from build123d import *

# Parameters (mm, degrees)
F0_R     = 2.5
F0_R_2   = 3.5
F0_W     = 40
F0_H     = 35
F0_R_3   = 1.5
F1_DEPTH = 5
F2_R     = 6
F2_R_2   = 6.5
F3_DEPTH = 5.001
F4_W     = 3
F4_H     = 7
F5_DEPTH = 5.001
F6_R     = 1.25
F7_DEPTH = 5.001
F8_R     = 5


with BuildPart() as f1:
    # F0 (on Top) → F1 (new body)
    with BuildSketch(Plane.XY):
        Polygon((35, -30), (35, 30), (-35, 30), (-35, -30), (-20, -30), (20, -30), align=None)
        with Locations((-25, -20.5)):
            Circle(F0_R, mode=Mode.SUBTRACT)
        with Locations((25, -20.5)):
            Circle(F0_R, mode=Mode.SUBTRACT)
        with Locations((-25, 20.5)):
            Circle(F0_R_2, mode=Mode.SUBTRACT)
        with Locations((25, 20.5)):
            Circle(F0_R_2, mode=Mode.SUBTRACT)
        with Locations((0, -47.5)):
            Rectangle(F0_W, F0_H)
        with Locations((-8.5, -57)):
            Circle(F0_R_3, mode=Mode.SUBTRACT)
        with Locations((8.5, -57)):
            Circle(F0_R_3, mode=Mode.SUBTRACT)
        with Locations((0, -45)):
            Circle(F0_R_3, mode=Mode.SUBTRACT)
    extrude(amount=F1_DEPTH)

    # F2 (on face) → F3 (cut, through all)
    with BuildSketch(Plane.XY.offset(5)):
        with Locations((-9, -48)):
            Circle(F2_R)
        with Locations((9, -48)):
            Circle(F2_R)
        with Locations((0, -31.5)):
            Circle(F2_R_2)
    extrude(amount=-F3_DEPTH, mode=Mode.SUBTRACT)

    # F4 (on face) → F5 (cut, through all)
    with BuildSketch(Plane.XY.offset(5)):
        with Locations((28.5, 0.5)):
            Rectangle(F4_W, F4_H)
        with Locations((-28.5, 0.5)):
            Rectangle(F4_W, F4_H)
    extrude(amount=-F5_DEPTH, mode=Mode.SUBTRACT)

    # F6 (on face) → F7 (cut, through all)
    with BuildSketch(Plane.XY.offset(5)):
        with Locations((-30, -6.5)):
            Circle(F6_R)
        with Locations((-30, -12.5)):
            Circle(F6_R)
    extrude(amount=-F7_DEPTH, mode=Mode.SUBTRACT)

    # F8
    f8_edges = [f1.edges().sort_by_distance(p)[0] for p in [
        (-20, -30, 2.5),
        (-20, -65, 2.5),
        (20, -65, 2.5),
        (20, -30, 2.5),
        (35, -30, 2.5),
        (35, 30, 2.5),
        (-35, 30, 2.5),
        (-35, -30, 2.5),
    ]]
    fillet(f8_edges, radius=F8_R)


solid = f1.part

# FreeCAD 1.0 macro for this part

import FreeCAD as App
import Part
import Sketcher


def edges_at(feature, points):
    """Names of the edges that pass closest to the given points."""
    edges = feature.Shape.Edges
    near = lambda p: min(range(len(edges)), key=lambda i: edges[i].distToShape(Part.Vertex(*p))[0])
    return sorted({f"Edge{near(p) + 1}" for p in points})

doc = App.newDocument("Part")
params = doc.addObject("Spreadsheet::Sheet", "Params")
for row, (alias, value) in enumerate([
    ("sketch1_diameter", "3 mm"),
    ("sketch1_diameter2", "5 mm"),
    ("sketch1_diameter3", "7 mm"),
    ("sketch1_width", "70 mm"),
    ("sketch1_width2", "15 mm"),
    ("pad1_length", "5 mm"),
    ("sketch2_diameter", "12 mm"),
    ("sketch2_diameter2", "13 mm"),
    ("sketch3_width", "3 mm"),
    ("sketch3_height", "7 mm"),
    ("sketch4_diameter", "2.5 mm"),
    ("fillet_radius", "5 mm"),
], start=1):
    params.set(f"A{row}", alias)
    params.set(f"B{row}", "=" + value)
    params.setAlias(f"B{row}", alias)

body = doc.addObject("PartDesign::Body", "Body")

# Sketch on XY plane
sketch1 = body.newObject("Sketcher::SketchObject", "Sketch")
sketch1.AttachmentSupport = (doc.getObject("XY_Plane"), [""])
sketch1.MapMode = "FlatFace"
sketch1.addGeometry([
    Part.LineSegment(App.Vector(35, -30, 0), App.Vector(35, 30, 0)),  # 0
    Part.LineSegment(App.Vector(35, 30, 0), App.Vector(-35, 30, 0)),  # 1
    Part.LineSegment(App.Vector(-35, 30, 0), App.Vector(-35, -30, 0)),  # 2
    Part.LineSegment(App.Vector(-35, -30, 0), App.Vector(-20, -30, 0)),  # 3
    Part.LineSegment(App.Vector(-20, -30, 0), App.Vector(-20, -65, 0)),  # 4
    Part.LineSegment(App.Vector(-20, -65, 0), App.Vector(20, -65, 0)),  # 5
    Part.LineSegment(App.Vector(20, -65, 0), App.Vector(20, -30, 0)),  # 6
    Part.LineSegment(App.Vector(20, -30, 0), App.Vector(35, -30, 0)),  # 7
    Part.Circle(App.Vector(-8.5, -57, 0), App.Vector(0, 0, 1), 1.5),  # 8
    Part.Circle(App.Vector(-25, -20.5, 0), App.Vector(0, 0, 1), 2.5),  # 9
    Part.Circle(App.Vector(8.5, -57, 0), App.Vector(0, 0, 1), 1.5),  # 10
    Part.Circle(App.Vector(0, -45, 0), App.Vector(0, 0, 1), 1.5),  # 11
    Part.Circle(App.Vector(25, -20.5, 0), App.Vector(0, 0, 1), 2.5),  # 12
    Part.Circle(App.Vector(-25, 20.5, 0), App.Vector(0, 0, 1), 3.5),  # 13
    Part.Circle(App.Vector(25, 20.5, 0), App.Vector(0, 0, 1), 3.5),  # 14
], False)
sketch1.addConstraint([
    Sketcher.Constraint("Coincident", 0, 2, 1, 1),
    Sketcher.Constraint("Coincident", 1, 2, 2, 1),
    Sketcher.Constraint("Coincident", 2, 2, 3, 1),
    Sketcher.Constraint("Coincident", 3, 2, 4, 1),
    Sketcher.Constraint("Coincident", 4, 2, 5, 1),
    Sketcher.Constraint("Coincident", 5, 2, 6, 1),
    Sketcher.Constraint("Coincident", 6, 2, 7, 1),
    Sketcher.Constraint("Coincident", 7, 2, 0, 1),
    Sketcher.Constraint("Vertical", 0),
    Sketcher.Constraint("Horizontal", 1),
    Sketcher.Constraint("Vertical", 2),
    Sketcher.Constraint("Horizontal", 3),
    Sketcher.Constraint("Vertical", 4),
    Sketcher.Constraint("Horizontal", 5),
    Sketcher.Constraint("Vertical", 6),
    Sketcher.Constraint("Horizontal", 7),
    Sketcher.Constraint("Equal", 8, 10),
    Sketcher.Constraint("Equal", 10, 11),
    Sketcher.Constraint("Equal", 9, 12),
    Sketcher.Constraint("Equal", 13, 14),
    Sketcher.Constraint("Symmetric", 12, 3, 13, 3, -1, 1),
    Sketcher.Constraint("Symmetric", 9, 3, 14, 3, -1, 1),
    Sketcher.Constraint("Symmetric", 0, 2, 2, 2, -1, 1),
    Sketcher.Constraint("Symmetric", 8, 3, 10, 3, -2),
    Sketcher.Constraint("Symmetric", 9, 3, 12, 3, -2),
    Sketcher.Constraint("Symmetric", 3, 2, 6, 2, -2),
    Sketcher.Constraint("PointOnObject", 11, 3, -2),
    Sketcher.Constraint("Diameter", 8, 3.0),
    Sketcher.Constraint("Diameter", 9, 5.0),
    Sketcher.Constraint("Diameter", 13, 7.0),
    Sketcher.Constraint("DistanceX", 1, 2, 1, 1, 70.0),
    Sketcher.Constraint("DistanceX", 3, 1, 3, 2, 15.0),
    Sketcher.Constraint("DistanceY", 0, 1, 0, 2, 60.0),
    Sketcher.Constraint("DistanceY", 4, 2, 4, 1, 35.0),
    Sketcher.Constraint("DistanceY", 8, 3, -1, 1, 57.0),
    Sketcher.Constraint("DistanceX", 9, 3, -1, 1, 25.0),
    Sketcher.Constraint("DistanceY", 11, 3, -1, 1, 45.0),
    Sketcher.Constraint("DistanceX", 8, 3, 10, 3, 17.0),
    Sketcher.Constraint("DistanceY", 9, 3, 13, 3, 41.0),
])
sketch1.setExpression("Constraints[27]", "Params.sketch1_diameter")
sketch1.setExpression("Constraints[28]", "Params.sketch1_diameter2")
sketch1.setExpression("Constraints[29]", "Params.sketch1_diameter3")
sketch1.setExpression("Constraints[30]", "Params.sketch1_width")
sketch1.setExpression("Constraints[31]", "Params.sketch1_width2")
pad1 = body.newObject("PartDesign::Pad", "Pad")
pad1.Profile = sketch1
pad1.setExpression("Length", "Params.pad1_length")

# Sketch on XY plane
sketch2 = body.newObject("Sketcher::SketchObject", "Sketch001")
sketch2.AttachmentSupport = (doc.getObject("XY_Plane"), [""])
sketch2.MapMode = "FlatFace"
sketch2.AttachmentOffset = App.Placement(App.Vector(0, 0, 5), App.Rotation())
sketch2.addGeometry([
    Part.Circle(App.Vector(-9, -48, 0), App.Vector(0, 0, 1), 6),
    Part.Circle(App.Vector(9, -48, 0), App.Vector(0, 0, 1), 6),
    Part.Circle(App.Vector(0, -32, 0), App.Vector(0, 0, 1), 6),
], False)
sketch2.addConstraint([
    Sketcher.Constraint("Equal", 0, 1),
    Sketcher.Constraint("Symmetric", 0, 3, 1, 3, -2),
    Sketcher.Constraint("PointOnObject", 2, 3, -2),
    Sketcher.Constraint("Diameter", 0, 12.0),
    Sketcher.Constraint("Diameter", 2, 13.0),
    Sketcher.Constraint("DistanceX", 0, 3, -1, 1, 9.0),
    Sketcher.Constraint("DistanceY", 0, 3, -1, 1, 48.0),
    Sketcher.Constraint("DistanceY", 2, 3, -1, 1, 31.5),
])
sketch2.setExpression("Constraints[3]", "Params.sketch2_diameter")
sketch2.setExpression("Constraints[4]", "Params.sketch2_diameter2")
pocket1 = body.newObject("PartDesign::Pocket", "Pocket")
pocket1.Profile = sketch2
pocket1.Type = "ThroughAll"

# Sketch on XY plane
sketch3 = body.newObject("Sketcher::SketchObject", "Sketch002")
sketch3.AttachmentSupport = (doc.getObject("XY_Plane"), [""])
sketch3.MapMode = "FlatFace"
sketch3.AttachmentOffset = App.Placement(App.Vector(0, 0, 5), App.Rotation())
sketch3.addGeometry([
    Part.LineSegment(App.Vector(27, 4, 0), App.Vector(27, -3, 0)),  # 0
    Part.LineSegment(App.Vector(27, -3, 0), App.Vector(30, -3, 0)),  # 1
    Part.LineSegment(App.Vector(30, -3, 0), App.Vector(30, 4, 0)),  # 2
    Part.LineSegment(App.Vector(30, 4, 0), App.Vector(27, 4, 0)),  # 3
    Part.LineSegment(App.Vector(-30, 4, 0), App.Vector(-30, -3, 0)),  # 4
    Part.LineSegment(App.Vector(-30, -3, 0), App.Vector(-27, -3, 0)),  # 5
    Part.LineSegment(App.Vector(-27, -3, 0), App.Vector(-27, 4, 0)),  # 6
    Part.LineSegment(App.Vector(-27, 4, 0), App.Vector(-30, 4, 0)),  # 7
], False)
sketch3.addConstraint([
    Sketcher.Constraint("Coincident", 0, 2, 1, 1),
    Sketcher.Constraint("Coincident", 1, 2, 2, 1),
    Sketcher.Constraint("Coincident", 2, 2, 3, 1),
    Sketcher.Constraint("Coincident", 3, 2, 0, 1),
    Sketcher.Constraint("Coincident", 4, 2, 5, 1),
    Sketcher.Constraint("Coincident", 5, 2, 6, 1),
    Sketcher.Constraint("Coincident", 6, 2, 7, 1),
    Sketcher.Constraint("Coincident", 7, 2, 4, 1),
    Sketcher.Constraint("Vertical", 0),
    Sketcher.Constraint("Horizontal", 1),
    Sketcher.Constraint("Vertical", 2),
    Sketcher.Constraint("Horizontal", 3),
    Sketcher.Constraint("Vertical", 4),
    Sketcher.Constraint("Horizontal", 5),
    Sketcher.Constraint("Vertical", 6),
    Sketcher.Constraint("Horizontal", 7),
    Sketcher.Constraint("Symmetric", 1, 2, 4, 2, -2),
    Sketcher.Constraint("Symmetric", 3, 2, 6, 2, -2),
    Sketcher.Constraint("DistanceX", 1, 1, 1, 2, 3.0),
    Sketcher.Constraint("DistanceY", 0, 2, 0, 1, 7.0),
    Sketcher.Constraint("DistanceX", -1, 1, 0, 2, 27.0),
    Sketcher.Constraint("DistanceY", 0, 2, -1, 1, 3.0),
])
sketch3.setExpression("Constraints[18]", "Params.sketch3_width")
sketch3.setExpression("Constraints[19]", "Params.sketch3_height")
pocket2 = body.newObject("PartDesign::Pocket", "Pocket001")
pocket2.Profile = sketch3
pocket2.Type = "ThroughAll"

# Sketch on XY plane
sketch4 = body.newObject("Sketcher::SketchObject", "Sketch003")
sketch4.AttachmentSupport = (doc.getObject("XY_Plane"), [""])
sketch4.MapMode = "FlatFace"
sketch4.AttachmentOffset = App.Placement(App.Vector(0, 0, 5), App.Rotation())
sketch4.addGeometry([
    Part.Circle(App.Vector(-30, -6.5, 0), App.Vector(0, 0, 1), 1.2),
    Part.Circle(App.Vector(-30, -12.5, 0), App.Vector(0, 0, 1), 1.2),
], False)
sketch4.addConstraint([
    Sketcher.Constraint("Equal", 0, 1),
    Sketcher.Constraint("Vertical", 0, 3, 1, 3),
    Sketcher.Constraint("Diameter", 0, 2.5),
    Sketcher.Constraint("DistanceX", 0, 3, -1, 1, 30.0),
    Sketcher.Constraint("DistanceY", 1, 3, 0, 3, 6.0),
    Sketcher.Constraint("DistanceY", 0, 3, -1, 1, 6.5),
])
sketch4.setExpression("Constraints[2]", "Params.sketch4_diameter")
pocket3 = body.newObject("PartDesign::Pocket", "Pocket002")
pocket3.Profile = sketch4
pocket3.Type = "ThroughAll"
doc.recompute()

fillet = body.newObject("PartDesign::Fillet", "Fillet")
fillet.Base = (pocket3, edges_at(pocket3, [
    (-20, -30, 2.5),
    (-20, -65, 2.5),
    (20, -65, 2.5),
    (20, -30, 2.5),
    (35, -30, 2.5),
    (35, 30, 2.5),
    (-35, 30, 2.5),
    (-35, -30, 2.5),
]))
fillet.setExpression("Radius", "Params.fillet_radius")

doc.recompute()
